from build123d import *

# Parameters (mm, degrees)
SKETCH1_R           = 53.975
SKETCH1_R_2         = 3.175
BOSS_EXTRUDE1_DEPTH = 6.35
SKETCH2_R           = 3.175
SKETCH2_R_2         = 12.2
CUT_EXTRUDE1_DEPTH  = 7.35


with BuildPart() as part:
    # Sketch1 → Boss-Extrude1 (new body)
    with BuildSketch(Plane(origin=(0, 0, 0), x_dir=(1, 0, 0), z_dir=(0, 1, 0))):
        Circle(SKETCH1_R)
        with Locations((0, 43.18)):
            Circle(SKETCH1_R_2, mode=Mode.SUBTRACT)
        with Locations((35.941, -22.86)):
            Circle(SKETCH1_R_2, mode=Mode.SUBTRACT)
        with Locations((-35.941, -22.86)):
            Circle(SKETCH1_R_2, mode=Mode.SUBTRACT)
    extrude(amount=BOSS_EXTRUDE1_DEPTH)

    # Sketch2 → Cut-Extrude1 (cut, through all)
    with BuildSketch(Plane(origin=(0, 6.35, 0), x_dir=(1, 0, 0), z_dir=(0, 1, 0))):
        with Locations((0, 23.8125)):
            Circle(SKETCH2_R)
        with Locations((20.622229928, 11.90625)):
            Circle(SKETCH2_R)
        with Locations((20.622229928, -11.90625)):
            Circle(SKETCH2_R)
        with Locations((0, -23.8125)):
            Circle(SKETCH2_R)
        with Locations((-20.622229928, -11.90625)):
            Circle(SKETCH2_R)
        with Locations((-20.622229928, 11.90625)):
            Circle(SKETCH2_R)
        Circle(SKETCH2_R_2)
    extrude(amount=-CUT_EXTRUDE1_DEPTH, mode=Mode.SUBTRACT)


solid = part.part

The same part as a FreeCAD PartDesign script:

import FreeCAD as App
import Part
import Sketcher
from FreeCAD import Vector
Q = App.Units.Quantity

doc = App.newDocument("Part")
body = doc.addObject("PartDesign::Body", "Body")

# Sketch on XZ plane
sketch1 = body.newObject("Sketcher::SketchObject", "Sketch")
sketch1.AttachmentSupport = (doc.getObject("XZ_Plane"), [""])
sketch1.MapMode = "FlatFace"
sketch1.addGeometry(Part.Circle(Vector(0, 0, 0), Vector(0, 0, 1), 54), False)
sketch1.addGeometry(Part.Circle(Vector(-35.9, 22.9, 0), Vector(0, 0, 1), 3.2), False)
sketch1.addGeometry(Part.Circle(Vector(35.9, 22.9, 0), Vector(0, 0, 1), 3.2), False)
sketch1.addGeometry(Part.Circle(Vector(0, -43.2, 0), Vector(0, 0, 1), 3.2), False)
sketch1.addConstraint(Sketcher.Constraint("Coincident", 0, 3, -1, 1))
sketch1.addConstraint(Sketcher.Constraint("Equal", 1, 2))
sketch1.addConstraint(Sketcher.Constraint("Equal", 2, 3))
sketch1.addConstraint(Sketcher.Constraint("Symmetric", 1, 3, 2, 3, -2))
sketch1.addConstraint(Sketcher.Constraint("PointOnObject", 3, 3, -2))
sketch1.addConstraint(Sketcher.Constraint("Diameter", 0, Q("4.25 in")))
sketch1.addConstraint(Sketcher.Constraint("Diameter", 1, Q("0.25 in")))
sketch1.addConstraint(Sketcher.Constraint("DistanceY", -1, 1, 1, 3, Q("0.9 in")))
sketch1.addConstraint(Sketcher.Constraint("DistanceY", 3, 3, -1, 1, Q("1.7 in")))
sketch1.addConstraint(Sketcher.Constraint("DistanceX", 1, 3, 2, 3, Q("2.83 in")))
pad1 = body.newObject("PartDesign::Pad", "Pad")
pad1.Profile = sketch1
pad1.Length = Q("0.25 in")
pad1.Reversed = True

# Sketch on XZ plane
sketch2 = body.newObject("Sketcher::SketchObject", "Sketch001")
sketch2.AttachmentSupport = (doc.getObject("XZ_Plane"), [""])
sketch2.MapMode = "FlatFace"
sketch2.AttachmentOffset = App.Placement(Vector(0, 0, -0.25 * 25.4), App.Rotation())
sketch2.addGeometry(Part.Circle(Vector(0, -23.8, 0), Vector(0, 0, 1), 3.2), False)
sketch2.addGeometry(Part.Circle(Vector(20.6, -11.9, 0), Vector(0, 0, 1), 3.2), False)
sketch2.addGeometry(Part.Circle(Vector(20.6, 11.9, 0), Vector(0, 0, 1), 3.2), False)
sketch2.addGeometry(Part.Circle(Vector(0, 23.8, 0), Vector(0, 0, 1), 3.2), False)
sketch2.addGeometry(Part.Circle(Vector(-20.6, 11.9, 0), Vector(0, 0, 1), 3.2), False)
sketch2.addGeometry(Part.Circle(Vector(-20.6, -11.9, 0), Vector(0, 0, 1), 3.2), False)
sketch2.addGeometry(Part.Circle(Vector(0, 0, 0), Vector(0, 0, 1), 12.2), False)
sketch2.addConstraint(Sketcher.Constraint("Coincident", 6, 3, -1, 1))
sketch2.addConstraint(Sketcher.Constraint("Equal", 0, 1))
sketch2.addConstraint(Sketcher.Constraint("Equal", 1, 2))
sketch2.addConstraint(Sketcher.Constraint("Equal", 2, 3))
sketch2.addConstraint(Sketcher.Constraint("Equal", 3, 4))
sketch2.addConstraint(Sketcher.Constraint("Equal", 4, 5))
sketch2.addConstraint(Sketcher.Constraint("Symmetric", 0, 3, 3, 3, -1, 1))
sketch2.addConstraint(Sketcher.Constraint("Symmetric", 1, 3, 4, 3, -1, 1))
sketch2.addConstraint(Sketcher.Constraint("Symmetric", 2, 3, 5, 3, -1, 1))
sketch2.addConstraint(Sketcher.Constraint("Symmetric", 2, 3, 4, 3, -2))
sketch2.addConstraint(Sketcher.Constraint("PointOnObject", 0, 3, -2))
sketch2.addConstraint(Sketcher.Constraint("Diameter", 0, Q("0.25 in")))
sketch2.addConstraint(Sketcher.Constraint("Diameter", 6, Q("24.4 mm")))
sketch2.addConstraint(Sketcher.Constraint("DistanceY", 0, 3, -1, 1, Q("0.9375 in")))
sketch2.addConstraint(Sketcher.Constraint("DistanceY", 1, 3, -1, 1, Q("0.46875 in")))
sketch2.addConstraint(Sketcher.Constraint("DistanceX", -1, 1, 1, 3, Q("20.62223 mm")))
pocket1 = body.newObject("PartDesign::Pocket", "Pocket")
pocket1.Profile = sketch2
pocket1.Type = "ThroughAll"
pocket1.Reversed = True

doc.recompute()
